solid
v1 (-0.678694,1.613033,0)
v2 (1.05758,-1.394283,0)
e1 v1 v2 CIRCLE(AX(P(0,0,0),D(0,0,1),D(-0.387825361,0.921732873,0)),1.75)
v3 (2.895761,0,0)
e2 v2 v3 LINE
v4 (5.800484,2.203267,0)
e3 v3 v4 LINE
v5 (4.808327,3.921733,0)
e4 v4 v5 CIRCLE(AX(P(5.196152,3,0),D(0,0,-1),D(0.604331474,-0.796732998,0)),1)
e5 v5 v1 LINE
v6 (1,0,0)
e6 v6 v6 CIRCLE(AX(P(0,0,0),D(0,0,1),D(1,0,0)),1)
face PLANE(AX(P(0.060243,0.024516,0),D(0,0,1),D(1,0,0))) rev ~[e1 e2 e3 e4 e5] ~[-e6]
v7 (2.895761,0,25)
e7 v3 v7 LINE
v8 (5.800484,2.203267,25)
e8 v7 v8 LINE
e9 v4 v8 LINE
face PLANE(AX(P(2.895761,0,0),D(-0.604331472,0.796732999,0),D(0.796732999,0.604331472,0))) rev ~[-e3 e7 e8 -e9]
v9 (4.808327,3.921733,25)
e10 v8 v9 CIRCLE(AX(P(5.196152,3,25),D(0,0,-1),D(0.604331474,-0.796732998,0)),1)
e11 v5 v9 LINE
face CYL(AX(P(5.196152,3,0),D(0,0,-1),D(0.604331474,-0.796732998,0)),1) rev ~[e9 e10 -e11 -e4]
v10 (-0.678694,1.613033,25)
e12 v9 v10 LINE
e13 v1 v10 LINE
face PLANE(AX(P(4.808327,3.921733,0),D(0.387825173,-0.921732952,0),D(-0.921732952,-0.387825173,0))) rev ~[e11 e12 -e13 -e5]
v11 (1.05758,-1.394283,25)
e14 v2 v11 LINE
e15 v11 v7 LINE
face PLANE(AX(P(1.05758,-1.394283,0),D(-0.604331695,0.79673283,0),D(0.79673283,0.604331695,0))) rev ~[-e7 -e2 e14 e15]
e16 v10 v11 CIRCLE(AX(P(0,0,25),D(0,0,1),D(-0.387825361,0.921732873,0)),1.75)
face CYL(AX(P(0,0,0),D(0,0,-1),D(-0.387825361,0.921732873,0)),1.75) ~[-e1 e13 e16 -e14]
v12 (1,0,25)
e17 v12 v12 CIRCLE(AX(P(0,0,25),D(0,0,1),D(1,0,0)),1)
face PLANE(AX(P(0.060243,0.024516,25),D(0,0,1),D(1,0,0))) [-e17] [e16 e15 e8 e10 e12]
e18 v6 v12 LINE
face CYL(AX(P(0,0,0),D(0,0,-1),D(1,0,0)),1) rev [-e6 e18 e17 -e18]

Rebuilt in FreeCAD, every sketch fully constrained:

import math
import FreeCAD as App
import Part
import Sketcher
Q = App.Units.Quantity

doc = App.newDocument("Part")
params = doc.addObject("Spreadsheet::Sheet", "Params")
for row, (alias, value) in enumerate([
    ("sketch1_diameter", "2 mm"),
    ("sketch1_radius", "1.75 mm"),
    ("pad1_length", "25 mm"),
], start=1):
    params.set(f"A{row}", alias)
    params.set(f"B{row}", "=" + value)
    params.setAlias(f"B{row}", alias)

body = doc.addObject("PartDesign::Body", "Body")

sketch1 = body.newObject("Sketcher::SketchObject", "Sketch")
sketch1.AttachmentSupport = (doc.getObject("XY_Plane"), [""])
sketch1.MapMode = "FlatFace"
sketch1.addGeometry([
    Part.ArcOfCircle(Part.Circle(App.Vector(0, 0, 0), App.Vector(0, 0, 1), 1.75), math.radians(112.819255), math.radians(307.180725)),
    Part.LineSegment(App.Vector(1.05758, -1.394283, 0), App.Vector(2.895761, 0, 0)),
    Part.LineSegment(App.Vector(2.895761, 0, 0), App.Vector(5.800484, 2.203267, 0)),
    Part.ArcOfCircle(Part.Circle(App.Vector(5.196152, 3, 0), App.Vector(0, 0, 1), 1), math.radians(112.819259), math.radians(307.180751)),
    Part.LineSegment(App.Vector(4.808327, 3.921733, 0), App.Vector(-0.678694, 1.613033, 0)),
    Part.Circle(App.Vector(0, 0, 0), App.Vector(0, 0, 1), 1),
], False)
sketch1.addConstraint([
    Sketcher.Constraint("Tangent", 0, 2, 1, 1),
    Sketcher.Constraint("Coincident", 1, 2, 2, 1),
    Sketcher.Constraint("Tangent", 2, 2, 3, 2),
    Sketcher.Constraint("Tangent", 3, 1, 4, 1),
    Sketcher.Constraint("Tangent", 4, 2, 0, 1),
    Sketcher.Constraint("Coincident", 0, 3, -1, 1),
    Sketcher.Constraint("Coincident", 5, 3, -1, 1),
    Sketcher.Constraint("Equal", 3, 5),
    Sketcher.Constraint("PointOnObject", 1, 2, -1),
    Sketcher.Constraint("Parallel", 1, 2),
    Sketcher.Constraint("Diameter", 5, Q("2 mm")),
    Sketcher.Constraint("Radius", 0, Q("1.75 mm")),
    Sketcher.Constraint("DistanceY", -1, 1, 3, 3, Q("3 mm")),
    Sketcher.Constraint("DistanceY", 4, 2, 3, 1, Q("2.3087 mm")),
])
sketch1.setExpression("Constraints[10]", "Params.sketch1_diameter")
sketch1.setExpression("Constraints[11]", "Params.sketch1_radius")
pad1 = body.newObject("PartDesign::Pad", "Pad")
pad1.Profile = sketch1
pad1.setExpression("Length", "Params.pad1_length")

doc.recompute()
